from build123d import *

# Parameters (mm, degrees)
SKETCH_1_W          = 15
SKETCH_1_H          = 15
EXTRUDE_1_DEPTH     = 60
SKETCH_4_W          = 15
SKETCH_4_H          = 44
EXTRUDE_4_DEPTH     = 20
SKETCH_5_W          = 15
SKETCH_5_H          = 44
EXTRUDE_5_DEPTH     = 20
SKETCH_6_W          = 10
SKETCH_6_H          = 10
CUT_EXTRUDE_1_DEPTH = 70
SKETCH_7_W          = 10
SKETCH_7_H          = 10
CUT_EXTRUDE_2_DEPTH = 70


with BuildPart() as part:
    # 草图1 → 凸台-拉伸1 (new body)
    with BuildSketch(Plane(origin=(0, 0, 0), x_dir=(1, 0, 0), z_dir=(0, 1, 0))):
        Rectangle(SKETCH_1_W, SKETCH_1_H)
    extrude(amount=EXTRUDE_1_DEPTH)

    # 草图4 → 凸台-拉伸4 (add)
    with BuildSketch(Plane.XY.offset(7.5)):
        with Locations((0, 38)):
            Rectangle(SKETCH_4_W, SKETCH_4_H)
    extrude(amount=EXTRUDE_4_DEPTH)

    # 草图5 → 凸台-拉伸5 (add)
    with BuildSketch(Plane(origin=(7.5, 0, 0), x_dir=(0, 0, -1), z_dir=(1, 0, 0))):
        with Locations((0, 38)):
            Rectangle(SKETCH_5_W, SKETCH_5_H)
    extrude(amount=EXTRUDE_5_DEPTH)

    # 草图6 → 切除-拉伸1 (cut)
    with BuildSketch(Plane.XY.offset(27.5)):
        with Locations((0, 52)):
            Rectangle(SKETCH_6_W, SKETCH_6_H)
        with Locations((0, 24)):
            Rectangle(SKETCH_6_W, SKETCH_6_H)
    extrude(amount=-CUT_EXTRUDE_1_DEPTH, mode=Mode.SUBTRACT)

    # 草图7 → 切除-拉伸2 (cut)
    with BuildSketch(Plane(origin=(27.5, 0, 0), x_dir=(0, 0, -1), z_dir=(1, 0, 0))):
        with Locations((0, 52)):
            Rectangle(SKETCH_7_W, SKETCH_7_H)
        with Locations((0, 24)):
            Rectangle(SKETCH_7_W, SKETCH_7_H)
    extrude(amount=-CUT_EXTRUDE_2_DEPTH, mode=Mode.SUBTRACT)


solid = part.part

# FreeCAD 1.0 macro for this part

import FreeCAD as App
import Part
import Sketcher
from FreeCAD import Vector


def add_polygon(sketch, points):
    """Adds a closed chain of lines whose ends are joined by coincident constraints."""
    first, n = sketch.GeometryCount, len(points)
    for a, b in zip(points, points[1:] + points[:1]):
        sketch.addGeometry(Part.LineSegment(App.Vector(*a, 0), App.Vector(*b, 0)), False)
    for i in range(n):
        sketch.addConstraint(Sketcher.Constraint("Coincident", first + i, 2, first + (i + 1) % n, 1))

doc = App.newDocument("Part")
params = doc.addObject("Spreadsheet::Sheet", "Params")
for row, (alias, value) in enumerate([
    ("sketch1_width", "15 mm"),
    ("pad1_length", "60 mm"),
    ("sketch2_width", "15 mm"),
    ("sketch2_height", "44 mm"),
    ("pad2_length", "20 mm"),
    ("sketch3_width", "44 mm"),
    ("sketch3_height", "15 mm"),
    ("pad3_length", "20 mm"),
    ("sketch4_width", "10 mm"),
    ("pocket1_length", "70 mm"),
    ("sketch5_width", "10 mm"),
    ("pocket2_length", "70 mm"),
], start=1):
    params.set(f"A{row}", alias)
    params.set(f"B{row}", "=" + value)
    params.setAlias(f"B{row}", alias)

body = doc.addObject("PartDesign::Body", "Body")

# Sketch on XZ plane
sketch1 = body.newObject("Sketcher::SketchObject", "Sketch")
sketch1.AttachmentSupport = (doc.getObject("XZ_Plane"), [""])
sketch1.MapMode = "FlatFace"
add_polygon(sketch1, [(-7.5, -7.5), (-7.5, 7.5), (7.5, 7.5), (7.5, -7.5)])  # lines 0-3
sketch1.addConstraint(Sketcher.Constraint("Vertical", 0))
sketch1.addConstraint(Sketcher.Constraint("Horizontal", 1))
sketch1.addConstraint(Sketcher.Constraint("Vertical", 2))
sketch1.addConstraint(Sketcher.Constraint("Horizontal", 3))
sketch1.addConstraint(Sketcher.Constraint("Symmetric", 0, 2, 2, 2, -1, 1))
sketch1.addConstraint(Sketcher.Constraint("Equal", 3, 0))
sketch1.addConstraint(Sketcher.Constraint("DistanceX", 1, 1, 1, 2, 15.0))
sketch1.setExpression("Constraints[10]", "Params.sketch1_width")
pad1 = body.newObject("PartDesign::Pad", "Pad")
pad1.Profile = sketch1
pad1.setExpression("Length", "Params.pad1_length")
pad1.Reversed = True

# Sketch on XY plane
sketch2 = body.newObject("Sketcher::SketchObject", "Sketch001")
sketch2.AttachmentSupport = (doc.getObject("XY_Plane"), [""])
sketch2.MapMode = "FlatFace"
sketch2.AttachmentOffset = App.Placement(Vector(0, 0, 7.5), App.Rotation())
add_polygon(sketch2, [(-7.5, 60), (-7.5, 16), (7.5, 16), (7.5, 60)])  # lines 0-3
sketch2.addConstraint(Sketcher.Constraint("Vertical", 0))
sketch2.addConstraint(Sketcher.Constraint("Horizontal", 1))
sketch2.addConstraint(Sketcher.Constraint("Vertical", 2))
sketch2.addConstraint(Sketcher.Constraint("Horizontal", 3))
sketch2.addConstraint(Sketcher.Constraint("DistanceX", 1, 1, 1, 2, 15.0))
sketch2.addConstraint(Sketcher.Constraint("DistanceY", 0, 2, 0, 1, 44.0))
sketch2.addConstraint(Sketcher.Constraint("DistanceY", -1, 1, 0, 2, 16.0))
sketch2.addConstraint(Sketcher.Constraint("DistanceX", 0, 2, -1, 1, 7.5))
sketch2.setExpression("Constraints[8]", "Params.sketch2_width")
sketch2.setExpression("Constraints[9]", "Params.sketch2_height")
pad2 = body.newObject("PartDesign::Pad", "Pad001")
pad2.Profile = sketch2
pad2.setExpression("Length", "Params.pad2_length")

# Sketch on YZ plane
sketch3 = body.newObject("Sketcher::SketchObject", "Sketch002")
sketch3.AttachmentSupport = (doc.getObject("YZ_Plane"), [""])
sketch3.MapMode = "FlatFace"
sketch3.AttachmentOffset = App.Placement(Vector(0, 0, 7.5), App.Rotation())
add_polygon(sketch3, [(60, 7.5), (16, 7.5), (16, -7.5), (60, -7.5)])  # lines 0-3
sketch3.addConstraint(Sketcher.Constraint("Horizontal", 0))
sketch3.addConstraint(Sketcher.Constraint("Vertical", 1))
sketch3.addConstraint(Sketcher.Constraint("Horizontal", 2))
sketch3.addConstraint(Sketcher.Constraint("Vertical", 3))
sketch3.addConstraint(Sketcher.Constraint("DistanceX", 0, 2, 0, 1, 44.0))
sketch3.addConstraint(Sketcher.Constraint("DistanceY", 1, 2, 1, 1, 15.0))
sketch3.addConstraint(Sketcher.Constraint("DistanceX", -1, 1, 0, 2, 16.0))
sketch3.addConstraint(Sketcher.Constraint("DistanceY", -1, 1, 0, 2, 7.5))
sketch3.setExpression("Constraints[8]", "Params.sketch3_width")
sketch3.setExpression("Constraints[9]", "Params.sketch3_height")
pad3 = body.newObject("PartDesign::Pad", "Pad002")
pad3.Profile = sketch3
pad3.setExpression("Length", "Params.pad3_length")

# Sketch on XY plane
sketch4 = body.newObject("Sketcher::SketchObject", "Sketch003")
sketch4.AttachmentSupport = (doc.getObject("XY_Plane"), [""])
sketch4.MapMode = "FlatFace"
sketch4.AttachmentOffset = App.Placement(Vector(0, 0, 27.5), App.Rotation())
add_polygon(sketch4, [(-5, 57), (-5, 47), (5, 47), (5, 57)])  # lines 0-3
add_polygon(sketch4, [(-5, 29), (-5, 19), (5, 19), (5, 29)])  # lines 4-7
sketch4.addConstraint(Sketcher.Constraint("Vertical", 0))
sketch4.addConstraint(Sketcher.Constraint("Horizontal", 1))
sketch4.addConstraint(Sketcher.Constraint("Vertical", 2))
sketch4.addConstraint(Sketcher.Constraint("Horizontal", 3))
sketch4.addConstraint(Sketcher.Constraint("Vertical", 4))
sketch4.addConstraint(Sketcher.Constraint("Horizontal", 5))
sketch4.addConstraint(Sketcher.Constraint("Vertical", 6))
sketch4.addConstraint(Sketcher.Constraint("Horizontal", 7))
sketch4.addConstraint(Sketcher.Constraint("Vertical", 3, 2, 4, 2))
sketch4.addConstraint(Sketcher.Constraint("Vertical", 2, 2, 5, 2))
sketch4.addConstraint(Sketcher.Constraint("Equal", 7, 0))
sketch4.addConstraint(Sketcher.Constraint("Equal", 2, 4))
sketch4.addConstraint(Sketcher.Constraint("DistanceX", 1, 1, 1, 2, 10.0))
sketch4.addConstraint(Sketcher.Constraint("DistanceX", 0, 2, -1, 1, 5.0))
sketch4.addConstraint(Sketcher.Constraint("DistanceY", -1, 1, 0, 2, 47.0))
sketch4.addConstraint(Sketcher.Constraint("DistanceY", -1, 1, 4, 2, 19.0))
sketch4.setExpression("Constraints[20]", "Params.sketch4_width")
pocket1 = body.newObject("PartDesign::Pocket", "Pocket")
pocket1.Profile = sketch4
pocket1.setExpression("Length", "Params.pocket1_length")

# Sketch on YZ plane
sketch5 = body.newObject("Sketcher::SketchObject", "Sketch004")
sketch5.AttachmentSupport = (doc.getObject("YZ_Plane"), [""])
sketch5.MapMode = "FlatFace"
sketch5.AttachmentOffset = App.Placement(Vector(0, 0, 27.5), App.Rotation())
add_polygon(sketch5, [(57, 5), (47, 5), (47, -5), (57, -5)])  # lines 0-3
add_polygon(sketch5, [(29, 5), (19, 5), (19, -5), (29, -5)])  # lines 4-7
sketch5.addConstraint(Sketcher.Constraint("Horizontal", 0))
sketch5.addConstraint(Sketcher.Constraint("Vertical", 1))
sketch5.addConstraint(Sketcher.Constraint("Horizontal", 2))
sketch5.addConstraint(Sketcher.Constraint("Vertical", 3))
sketch5.addConstraint(Sketcher.Constraint("Horizontal", 4))
sketch5.addConstraint(Sketcher.Constraint("Vertical", 5))
sketch5.addConstraint(Sketcher.Constraint("Horizontal", 6))
sketch5.addConstraint(Sketcher.Constraint("Vertical", 7))
sketch5.addConstraint(Sketcher.Constraint("Horizontal", 3, 2, 4, 2))
sketch5.addConstraint(Sketcher.Constraint("Horizontal", 2, 2, 5, 2))
sketch5.addConstraint(Sketcher.Constraint("Equal", 2, 4))
sketch5.addConstraint(Sketcher.Constraint("Equal", 6, 1))
sketch5.addConstraint(Sketcher.Constraint("DistanceX", 0, 2, 0, 1, 10.0))
sketch5.addConstraint(Sketcher.Constraint("DistanceX", -1, 1, 0, 2, 47.0))
sketch5.addConstraint(Sketcher.Constraint("DistanceY", -1, 1, 0, 2, 5.0))
sketch5.addConstraint(Sketcher.Constraint("DistanceX", -1, 1, 4, 2, 19.0))
sketch5.setExpression("Constraints[20]", "Params.sketch5_width")
pocket2 = body.newObject("PartDesign::Pocket", "Pocket001")
pocket2.Profile = sketch5
pocket2.setExpression("Length", "Params.pocket2_length")

doc.recompute()
